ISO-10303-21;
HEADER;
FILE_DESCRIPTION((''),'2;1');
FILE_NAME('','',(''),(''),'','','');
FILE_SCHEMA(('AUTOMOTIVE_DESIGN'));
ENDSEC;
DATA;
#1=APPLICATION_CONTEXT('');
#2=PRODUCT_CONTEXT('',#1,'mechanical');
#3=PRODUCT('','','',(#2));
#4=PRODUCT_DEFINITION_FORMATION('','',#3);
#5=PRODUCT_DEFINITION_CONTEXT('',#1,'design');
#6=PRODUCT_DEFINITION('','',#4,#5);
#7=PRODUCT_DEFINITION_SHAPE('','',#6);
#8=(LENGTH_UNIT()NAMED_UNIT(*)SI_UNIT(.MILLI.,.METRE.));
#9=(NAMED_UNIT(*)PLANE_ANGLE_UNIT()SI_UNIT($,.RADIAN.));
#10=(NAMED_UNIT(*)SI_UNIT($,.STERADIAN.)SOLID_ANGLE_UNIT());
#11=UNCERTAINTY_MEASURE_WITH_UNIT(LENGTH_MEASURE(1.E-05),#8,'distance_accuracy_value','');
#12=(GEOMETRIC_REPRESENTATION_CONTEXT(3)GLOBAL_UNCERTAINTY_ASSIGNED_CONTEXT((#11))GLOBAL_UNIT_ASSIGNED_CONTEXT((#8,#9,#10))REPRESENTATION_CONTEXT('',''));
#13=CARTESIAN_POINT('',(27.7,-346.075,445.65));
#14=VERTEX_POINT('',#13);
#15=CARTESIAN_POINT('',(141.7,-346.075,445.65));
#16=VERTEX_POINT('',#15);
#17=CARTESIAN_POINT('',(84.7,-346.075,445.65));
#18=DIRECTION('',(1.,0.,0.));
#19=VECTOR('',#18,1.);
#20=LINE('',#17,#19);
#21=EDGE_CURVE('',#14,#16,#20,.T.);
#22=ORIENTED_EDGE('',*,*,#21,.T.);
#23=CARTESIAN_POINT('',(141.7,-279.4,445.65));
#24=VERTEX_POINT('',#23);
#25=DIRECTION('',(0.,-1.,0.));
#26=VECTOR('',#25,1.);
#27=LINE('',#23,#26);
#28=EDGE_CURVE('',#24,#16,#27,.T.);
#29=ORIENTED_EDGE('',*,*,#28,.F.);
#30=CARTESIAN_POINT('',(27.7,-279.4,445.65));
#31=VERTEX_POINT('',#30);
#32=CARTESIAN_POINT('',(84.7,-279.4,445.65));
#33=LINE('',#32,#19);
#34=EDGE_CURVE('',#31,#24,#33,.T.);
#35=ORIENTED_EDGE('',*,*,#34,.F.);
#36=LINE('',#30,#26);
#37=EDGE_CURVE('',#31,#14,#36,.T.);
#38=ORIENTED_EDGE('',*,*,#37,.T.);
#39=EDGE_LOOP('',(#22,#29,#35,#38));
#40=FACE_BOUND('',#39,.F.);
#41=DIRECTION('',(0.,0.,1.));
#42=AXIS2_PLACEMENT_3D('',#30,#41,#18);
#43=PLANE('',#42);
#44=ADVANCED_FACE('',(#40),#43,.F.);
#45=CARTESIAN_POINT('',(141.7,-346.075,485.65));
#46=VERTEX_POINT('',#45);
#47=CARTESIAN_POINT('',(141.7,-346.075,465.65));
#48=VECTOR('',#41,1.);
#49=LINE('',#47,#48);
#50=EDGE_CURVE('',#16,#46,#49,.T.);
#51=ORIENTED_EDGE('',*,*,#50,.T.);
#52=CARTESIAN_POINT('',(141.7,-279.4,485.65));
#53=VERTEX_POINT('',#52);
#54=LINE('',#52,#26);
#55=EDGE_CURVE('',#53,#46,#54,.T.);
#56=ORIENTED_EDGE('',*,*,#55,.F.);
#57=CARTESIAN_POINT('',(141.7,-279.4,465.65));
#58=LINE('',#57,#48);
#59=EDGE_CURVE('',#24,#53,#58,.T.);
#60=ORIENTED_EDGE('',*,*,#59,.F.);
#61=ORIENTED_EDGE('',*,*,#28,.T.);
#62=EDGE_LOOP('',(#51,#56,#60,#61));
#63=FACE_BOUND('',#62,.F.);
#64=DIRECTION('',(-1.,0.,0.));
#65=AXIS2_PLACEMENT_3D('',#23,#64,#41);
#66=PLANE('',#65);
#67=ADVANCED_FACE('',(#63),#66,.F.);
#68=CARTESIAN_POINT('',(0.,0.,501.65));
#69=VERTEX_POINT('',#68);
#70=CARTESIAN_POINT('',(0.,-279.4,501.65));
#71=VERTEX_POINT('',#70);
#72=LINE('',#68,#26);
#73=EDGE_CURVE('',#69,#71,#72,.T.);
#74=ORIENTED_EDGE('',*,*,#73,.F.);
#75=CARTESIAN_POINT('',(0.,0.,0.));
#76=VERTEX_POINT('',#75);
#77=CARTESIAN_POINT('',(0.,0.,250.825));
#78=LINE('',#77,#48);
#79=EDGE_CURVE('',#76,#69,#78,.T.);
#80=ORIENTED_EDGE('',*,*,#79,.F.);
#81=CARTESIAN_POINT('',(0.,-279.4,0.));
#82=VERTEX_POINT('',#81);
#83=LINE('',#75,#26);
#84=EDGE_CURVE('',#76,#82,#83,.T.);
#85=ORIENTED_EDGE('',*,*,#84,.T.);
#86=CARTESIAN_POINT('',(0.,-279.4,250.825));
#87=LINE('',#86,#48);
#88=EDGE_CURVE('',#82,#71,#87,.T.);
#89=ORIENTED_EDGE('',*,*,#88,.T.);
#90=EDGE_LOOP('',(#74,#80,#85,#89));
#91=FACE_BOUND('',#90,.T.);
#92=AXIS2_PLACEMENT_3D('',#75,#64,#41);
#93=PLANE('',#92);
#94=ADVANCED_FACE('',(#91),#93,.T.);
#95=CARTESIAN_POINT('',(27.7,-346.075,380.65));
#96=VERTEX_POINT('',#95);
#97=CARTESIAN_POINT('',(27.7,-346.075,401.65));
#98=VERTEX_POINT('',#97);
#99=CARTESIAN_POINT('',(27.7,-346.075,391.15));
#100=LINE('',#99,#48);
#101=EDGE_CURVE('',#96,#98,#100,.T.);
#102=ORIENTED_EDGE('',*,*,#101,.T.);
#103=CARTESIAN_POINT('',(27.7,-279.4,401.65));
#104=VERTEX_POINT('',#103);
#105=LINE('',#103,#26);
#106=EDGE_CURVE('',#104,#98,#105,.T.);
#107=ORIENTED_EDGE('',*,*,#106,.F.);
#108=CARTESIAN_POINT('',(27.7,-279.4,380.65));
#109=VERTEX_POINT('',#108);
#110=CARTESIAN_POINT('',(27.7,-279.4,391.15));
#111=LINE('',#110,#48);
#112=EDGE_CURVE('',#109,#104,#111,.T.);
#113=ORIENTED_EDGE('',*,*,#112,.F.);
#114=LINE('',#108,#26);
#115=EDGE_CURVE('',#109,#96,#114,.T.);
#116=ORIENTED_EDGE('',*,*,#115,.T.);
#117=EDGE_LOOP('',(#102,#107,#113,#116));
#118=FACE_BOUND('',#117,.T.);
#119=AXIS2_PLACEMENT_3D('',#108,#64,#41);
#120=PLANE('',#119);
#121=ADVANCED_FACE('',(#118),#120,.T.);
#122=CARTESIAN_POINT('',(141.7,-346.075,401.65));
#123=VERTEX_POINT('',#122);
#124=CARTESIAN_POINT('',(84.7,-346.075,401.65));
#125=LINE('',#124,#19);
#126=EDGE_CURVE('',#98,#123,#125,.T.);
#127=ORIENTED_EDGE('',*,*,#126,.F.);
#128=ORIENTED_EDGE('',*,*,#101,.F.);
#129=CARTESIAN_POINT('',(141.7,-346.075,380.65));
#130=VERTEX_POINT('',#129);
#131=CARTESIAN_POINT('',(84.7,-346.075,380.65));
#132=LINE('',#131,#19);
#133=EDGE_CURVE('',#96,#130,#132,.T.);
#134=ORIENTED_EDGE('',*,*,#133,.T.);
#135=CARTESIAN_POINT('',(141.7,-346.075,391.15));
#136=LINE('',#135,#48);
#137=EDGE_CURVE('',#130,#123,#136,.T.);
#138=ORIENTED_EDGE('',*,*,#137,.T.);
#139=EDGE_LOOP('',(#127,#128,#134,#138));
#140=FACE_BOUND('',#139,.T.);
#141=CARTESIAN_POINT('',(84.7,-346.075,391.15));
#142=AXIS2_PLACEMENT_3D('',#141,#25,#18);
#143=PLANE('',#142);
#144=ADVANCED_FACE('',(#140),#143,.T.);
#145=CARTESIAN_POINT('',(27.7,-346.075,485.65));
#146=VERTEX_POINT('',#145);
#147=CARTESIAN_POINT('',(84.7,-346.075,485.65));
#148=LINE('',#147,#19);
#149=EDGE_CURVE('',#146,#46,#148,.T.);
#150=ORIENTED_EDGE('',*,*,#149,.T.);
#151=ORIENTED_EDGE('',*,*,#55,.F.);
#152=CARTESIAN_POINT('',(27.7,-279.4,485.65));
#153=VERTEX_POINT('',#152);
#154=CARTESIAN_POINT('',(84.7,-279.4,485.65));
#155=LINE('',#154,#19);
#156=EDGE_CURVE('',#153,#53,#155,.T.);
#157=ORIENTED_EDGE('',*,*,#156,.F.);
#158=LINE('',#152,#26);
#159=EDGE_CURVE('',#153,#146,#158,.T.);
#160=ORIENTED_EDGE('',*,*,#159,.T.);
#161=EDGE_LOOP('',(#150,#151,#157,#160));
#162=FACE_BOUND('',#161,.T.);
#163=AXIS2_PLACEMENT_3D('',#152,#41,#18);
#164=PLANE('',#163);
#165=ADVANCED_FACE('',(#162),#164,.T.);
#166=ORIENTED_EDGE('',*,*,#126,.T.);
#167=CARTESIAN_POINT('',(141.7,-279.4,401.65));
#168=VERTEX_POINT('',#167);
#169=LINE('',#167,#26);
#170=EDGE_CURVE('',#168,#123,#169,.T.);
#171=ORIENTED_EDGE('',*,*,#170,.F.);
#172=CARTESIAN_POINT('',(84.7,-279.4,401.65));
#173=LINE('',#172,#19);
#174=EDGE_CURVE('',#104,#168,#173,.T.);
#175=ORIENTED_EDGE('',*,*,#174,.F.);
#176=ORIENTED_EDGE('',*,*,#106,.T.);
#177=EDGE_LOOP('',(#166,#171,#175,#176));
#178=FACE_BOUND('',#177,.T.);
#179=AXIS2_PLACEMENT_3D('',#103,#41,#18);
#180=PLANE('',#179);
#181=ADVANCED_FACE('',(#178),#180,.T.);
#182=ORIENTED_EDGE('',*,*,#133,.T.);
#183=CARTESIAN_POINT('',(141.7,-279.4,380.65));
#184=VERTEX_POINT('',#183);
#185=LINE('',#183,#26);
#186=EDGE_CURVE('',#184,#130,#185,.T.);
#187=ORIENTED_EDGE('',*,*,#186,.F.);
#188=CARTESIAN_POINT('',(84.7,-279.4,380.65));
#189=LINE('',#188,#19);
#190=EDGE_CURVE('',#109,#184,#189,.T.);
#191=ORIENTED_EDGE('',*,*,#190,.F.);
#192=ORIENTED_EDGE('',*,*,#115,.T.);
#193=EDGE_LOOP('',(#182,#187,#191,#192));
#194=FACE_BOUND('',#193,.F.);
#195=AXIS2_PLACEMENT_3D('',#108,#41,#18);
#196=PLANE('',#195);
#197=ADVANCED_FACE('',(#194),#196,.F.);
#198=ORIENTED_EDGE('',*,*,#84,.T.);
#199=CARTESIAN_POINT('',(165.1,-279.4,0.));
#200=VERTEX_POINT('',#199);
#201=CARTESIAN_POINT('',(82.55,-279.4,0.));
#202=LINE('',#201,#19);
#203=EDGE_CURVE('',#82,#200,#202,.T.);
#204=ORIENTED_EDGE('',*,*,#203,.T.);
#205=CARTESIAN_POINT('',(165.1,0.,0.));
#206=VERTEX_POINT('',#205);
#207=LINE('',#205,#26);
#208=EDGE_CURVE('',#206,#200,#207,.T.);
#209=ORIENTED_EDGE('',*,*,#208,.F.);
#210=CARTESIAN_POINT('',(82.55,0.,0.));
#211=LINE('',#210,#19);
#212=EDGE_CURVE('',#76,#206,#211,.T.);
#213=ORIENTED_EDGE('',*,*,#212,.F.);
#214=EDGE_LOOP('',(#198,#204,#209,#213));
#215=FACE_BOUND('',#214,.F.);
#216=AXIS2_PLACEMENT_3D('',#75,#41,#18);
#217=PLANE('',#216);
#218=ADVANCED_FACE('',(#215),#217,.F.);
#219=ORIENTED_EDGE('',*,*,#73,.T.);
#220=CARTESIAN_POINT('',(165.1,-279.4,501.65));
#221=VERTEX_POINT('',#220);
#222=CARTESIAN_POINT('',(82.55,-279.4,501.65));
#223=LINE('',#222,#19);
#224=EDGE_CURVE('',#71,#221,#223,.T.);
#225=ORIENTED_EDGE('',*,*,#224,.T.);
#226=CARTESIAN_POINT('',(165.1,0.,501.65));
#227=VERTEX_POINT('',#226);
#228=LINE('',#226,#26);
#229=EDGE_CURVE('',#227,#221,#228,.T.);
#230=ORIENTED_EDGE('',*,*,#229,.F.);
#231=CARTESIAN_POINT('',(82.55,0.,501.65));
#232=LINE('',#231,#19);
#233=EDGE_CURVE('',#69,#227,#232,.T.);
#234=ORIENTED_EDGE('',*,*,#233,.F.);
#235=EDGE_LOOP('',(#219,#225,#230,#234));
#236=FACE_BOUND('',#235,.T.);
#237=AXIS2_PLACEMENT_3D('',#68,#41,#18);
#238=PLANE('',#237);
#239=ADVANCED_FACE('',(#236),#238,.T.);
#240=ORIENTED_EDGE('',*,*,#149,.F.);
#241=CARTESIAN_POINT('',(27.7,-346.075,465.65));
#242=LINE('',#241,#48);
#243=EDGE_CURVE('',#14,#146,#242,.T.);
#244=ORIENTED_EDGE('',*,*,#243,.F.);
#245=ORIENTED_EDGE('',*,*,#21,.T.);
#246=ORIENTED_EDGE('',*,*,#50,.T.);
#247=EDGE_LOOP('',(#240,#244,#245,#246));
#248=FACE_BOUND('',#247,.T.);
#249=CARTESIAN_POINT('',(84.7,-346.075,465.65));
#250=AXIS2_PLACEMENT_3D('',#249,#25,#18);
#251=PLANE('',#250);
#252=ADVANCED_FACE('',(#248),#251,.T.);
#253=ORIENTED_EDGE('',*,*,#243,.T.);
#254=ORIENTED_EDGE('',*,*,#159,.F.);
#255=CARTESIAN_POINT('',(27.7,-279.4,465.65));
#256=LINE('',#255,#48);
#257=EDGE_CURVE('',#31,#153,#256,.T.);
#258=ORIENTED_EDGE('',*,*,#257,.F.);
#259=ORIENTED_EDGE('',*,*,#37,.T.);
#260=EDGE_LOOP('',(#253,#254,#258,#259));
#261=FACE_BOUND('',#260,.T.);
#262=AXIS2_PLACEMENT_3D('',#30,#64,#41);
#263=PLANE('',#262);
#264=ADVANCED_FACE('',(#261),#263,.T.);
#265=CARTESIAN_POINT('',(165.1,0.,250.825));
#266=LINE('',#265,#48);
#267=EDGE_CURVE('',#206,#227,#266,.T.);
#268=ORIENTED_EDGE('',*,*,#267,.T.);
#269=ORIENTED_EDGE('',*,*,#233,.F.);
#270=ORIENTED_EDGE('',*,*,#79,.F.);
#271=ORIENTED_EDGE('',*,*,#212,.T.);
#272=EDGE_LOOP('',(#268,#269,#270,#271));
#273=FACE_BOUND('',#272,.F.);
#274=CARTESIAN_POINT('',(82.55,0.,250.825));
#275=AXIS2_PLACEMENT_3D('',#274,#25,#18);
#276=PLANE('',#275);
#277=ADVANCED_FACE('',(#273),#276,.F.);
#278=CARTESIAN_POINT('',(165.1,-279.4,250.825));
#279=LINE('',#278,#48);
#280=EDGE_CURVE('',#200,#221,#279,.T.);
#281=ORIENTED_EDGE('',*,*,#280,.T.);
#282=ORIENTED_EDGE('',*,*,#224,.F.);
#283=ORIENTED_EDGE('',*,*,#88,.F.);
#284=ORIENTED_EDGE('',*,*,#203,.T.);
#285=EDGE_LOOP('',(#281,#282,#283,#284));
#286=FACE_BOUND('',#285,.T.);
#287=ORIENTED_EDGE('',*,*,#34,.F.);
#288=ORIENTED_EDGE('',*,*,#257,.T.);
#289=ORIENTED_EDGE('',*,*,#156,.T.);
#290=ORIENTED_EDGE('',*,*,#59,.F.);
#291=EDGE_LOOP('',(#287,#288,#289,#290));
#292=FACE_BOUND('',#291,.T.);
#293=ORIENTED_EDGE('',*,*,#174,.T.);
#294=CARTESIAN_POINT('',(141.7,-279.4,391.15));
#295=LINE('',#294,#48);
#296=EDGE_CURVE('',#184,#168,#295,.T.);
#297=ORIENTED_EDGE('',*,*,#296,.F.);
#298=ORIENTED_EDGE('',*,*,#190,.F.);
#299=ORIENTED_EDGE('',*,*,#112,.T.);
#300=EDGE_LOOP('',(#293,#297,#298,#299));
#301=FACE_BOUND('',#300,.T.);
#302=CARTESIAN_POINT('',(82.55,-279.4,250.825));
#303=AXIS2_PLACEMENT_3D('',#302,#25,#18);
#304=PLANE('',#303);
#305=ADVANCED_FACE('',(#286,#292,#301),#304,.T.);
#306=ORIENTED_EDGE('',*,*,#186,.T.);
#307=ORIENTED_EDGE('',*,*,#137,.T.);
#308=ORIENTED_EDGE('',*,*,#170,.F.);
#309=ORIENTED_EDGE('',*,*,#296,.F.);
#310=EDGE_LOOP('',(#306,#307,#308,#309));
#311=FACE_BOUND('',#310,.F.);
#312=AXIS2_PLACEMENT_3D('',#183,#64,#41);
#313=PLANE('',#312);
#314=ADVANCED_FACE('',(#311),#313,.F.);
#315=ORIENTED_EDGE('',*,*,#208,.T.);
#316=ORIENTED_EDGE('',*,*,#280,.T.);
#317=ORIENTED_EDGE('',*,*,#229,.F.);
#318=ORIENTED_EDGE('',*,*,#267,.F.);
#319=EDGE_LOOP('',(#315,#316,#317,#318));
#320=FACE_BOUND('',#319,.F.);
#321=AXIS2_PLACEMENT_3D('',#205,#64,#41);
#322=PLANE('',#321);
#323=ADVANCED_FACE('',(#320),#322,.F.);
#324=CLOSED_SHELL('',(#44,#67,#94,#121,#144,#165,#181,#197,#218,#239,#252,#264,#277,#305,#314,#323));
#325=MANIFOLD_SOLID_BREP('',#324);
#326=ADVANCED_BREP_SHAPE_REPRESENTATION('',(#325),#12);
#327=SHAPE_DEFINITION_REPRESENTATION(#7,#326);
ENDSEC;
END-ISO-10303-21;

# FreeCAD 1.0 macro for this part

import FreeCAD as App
import Part
import Sketcher

V = App.Vector
Q = App.Units.Quantity


def add_polygon(sketch, points):
    """Adds a closed chain of lines whose ends are joined by coincident constraints."""
    first, n = sketch.GeometryCount, len(points)
    for a, b in zip(points, points[1:] + points[:1]):
        sketch.addGeometry(Part.LineSegment(App.Vector(*a, 0), App.Vector(*b, 0)), False)
    for i in range(n):
        sketch.addConstraint(Sketcher.Constraint("Coincident", first + i, 2, first + (i + 1) % n, 1))

doc = App.newDocument("Part")
params = doc.addObject("Spreadsheet::Sheet", "Params")
for row, (alias, value) in enumerate([
    ("sketch1_width", "6.5 in"),
    ("sketch1_height", "19.75 in"),
    ("pad1_length", "11 in"),
    ("pad2_length", "2.625 in"),
], start=1):
    params.set(f"A{row}", alias)
    params.set(f"B{row}", "=" + value)
    params.setAlias(f"B{row}", alias)

body = doc.addObject("PartDesign::Body", "Body")

# Sketch on XZ plane
sketch1 = body.newObject("Sketcher::SketchObject", "Sketch")
sketch1.AttachmentSupport = (doc.getObject("XZ_Plane"), [""])
sketch1.MapMode = "FlatFace"
add_polygon(sketch1, [(0, 502), (0, 0), (165, 0), (165, 502)])  # lines 0-3
sketch1.addConstraint(Sketcher.Constraint("Vertical", 0))
sketch1.addConstraint(Sketcher.Constraint("Horizontal", 1))
sketch1.addConstraint(Sketcher.Constraint("Vertical", 2))
sketch1.addConstraint(Sketcher.Constraint("Horizontal", 3))
sketch1.addConstraint(Sketcher.Constraint("Coincident", 0, 2, -1, 1))
sketch1.addConstraint(Sketcher.Constraint("DistanceX", 1, 1, 1, 2, Q("6.5 in")))
sketch1.addConstraint(Sketcher.Constraint("DistanceY", 0, 2, 0, 1, Q("19.75 in")))
sketch1.setExpression("Constraints[9]", "Params.sketch1_width")
sketch1.setExpression("Constraints[10]", "Params.sketch1_height")
pad1 = body.newObject("PartDesign::Pad", "Pad")
pad1.Profile = sketch1
pad1.setExpression("Length", "Params.pad1_length")

# Sketch on XZ plane
sketch2 = body.newObject("Sketcher::SketchObject", "Sketch001")
sketch2.AttachmentSupport = (doc.getObject("XZ_Plane"), [""])
sketch2.MapMode = "FlatFace"
sketch2.AttachmentOffset = App.Placement(V(0, 0, 11 * 25.4), App.Rotation())
add_polygon(sketch2, [(28, 486), (28, 446), (142, 446), (142, 486)])  # lines 0-3
add_polygon(sketch2, [(28, 402), (28, 381), (142, 381), (142, 402)])  # lines 4-7
sketch2.addConstraint(Sketcher.Constraint("Vertical", 0))
sketch2.addConstraint(Sketcher.Constraint("Horizontal", 1))
sketch2.addConstraint(Sketcher.Constraint("Vertical", 2))
sketch2.addConstraint(Sketcher.Constraint("Horizontal", 3))
sketch2.addConstraint(Sketcher.Constraint("Vertical", 4))
sketch2.addConstraint(Sketcher.Constraint("Horizontal", 5))
sketch2.addConstraint(Sketcher.Constraint("Vertical", 6))
sketch2.addConstraint(Sketcher.Constraint("Horizontal", 7))
sketch2.addConstraint(Sketcher.Constraint("Vertical", 3, 2, 4, 2))
sketch2.addConstraint(Sketcher.Constraint("Vertical", 2, 2, 5, 2))
sketch2.addConstraint(Sketcher.Constraint("DistanceX", 1, 1, 1, 2, Q("114 mm")))
sketch2.addConstraint(Sketcher.Constraint("DistanceY", 0, 2, 0, 1, Q("40 mm")))
sketch2.addConstraint(Sketcher.Constraint("DistanceY", 4, 2, 4, 1, Q("21 mm")))
sketch2.addConstraint(Sketcher.Constraint("DistanceX", -1, 1, 0, 2, Q("27.7 mm")))
sketch2.addConstraint(Sketcher.Constraint("DistanceY", -1, 1, 0, 2, Q("445.65 mm")))
sketch2.addConstraint(Sketcher.Constraint("DistanceY", -1, 1, 4, 2, Q("380.65 mm")))
pad2 = body.newObject("PartDesign::Pad", "Pad001")
pad2.Profile = sketch2
pad2.setExpression("Length", "Params.pad2_length")

doc.recompute()
